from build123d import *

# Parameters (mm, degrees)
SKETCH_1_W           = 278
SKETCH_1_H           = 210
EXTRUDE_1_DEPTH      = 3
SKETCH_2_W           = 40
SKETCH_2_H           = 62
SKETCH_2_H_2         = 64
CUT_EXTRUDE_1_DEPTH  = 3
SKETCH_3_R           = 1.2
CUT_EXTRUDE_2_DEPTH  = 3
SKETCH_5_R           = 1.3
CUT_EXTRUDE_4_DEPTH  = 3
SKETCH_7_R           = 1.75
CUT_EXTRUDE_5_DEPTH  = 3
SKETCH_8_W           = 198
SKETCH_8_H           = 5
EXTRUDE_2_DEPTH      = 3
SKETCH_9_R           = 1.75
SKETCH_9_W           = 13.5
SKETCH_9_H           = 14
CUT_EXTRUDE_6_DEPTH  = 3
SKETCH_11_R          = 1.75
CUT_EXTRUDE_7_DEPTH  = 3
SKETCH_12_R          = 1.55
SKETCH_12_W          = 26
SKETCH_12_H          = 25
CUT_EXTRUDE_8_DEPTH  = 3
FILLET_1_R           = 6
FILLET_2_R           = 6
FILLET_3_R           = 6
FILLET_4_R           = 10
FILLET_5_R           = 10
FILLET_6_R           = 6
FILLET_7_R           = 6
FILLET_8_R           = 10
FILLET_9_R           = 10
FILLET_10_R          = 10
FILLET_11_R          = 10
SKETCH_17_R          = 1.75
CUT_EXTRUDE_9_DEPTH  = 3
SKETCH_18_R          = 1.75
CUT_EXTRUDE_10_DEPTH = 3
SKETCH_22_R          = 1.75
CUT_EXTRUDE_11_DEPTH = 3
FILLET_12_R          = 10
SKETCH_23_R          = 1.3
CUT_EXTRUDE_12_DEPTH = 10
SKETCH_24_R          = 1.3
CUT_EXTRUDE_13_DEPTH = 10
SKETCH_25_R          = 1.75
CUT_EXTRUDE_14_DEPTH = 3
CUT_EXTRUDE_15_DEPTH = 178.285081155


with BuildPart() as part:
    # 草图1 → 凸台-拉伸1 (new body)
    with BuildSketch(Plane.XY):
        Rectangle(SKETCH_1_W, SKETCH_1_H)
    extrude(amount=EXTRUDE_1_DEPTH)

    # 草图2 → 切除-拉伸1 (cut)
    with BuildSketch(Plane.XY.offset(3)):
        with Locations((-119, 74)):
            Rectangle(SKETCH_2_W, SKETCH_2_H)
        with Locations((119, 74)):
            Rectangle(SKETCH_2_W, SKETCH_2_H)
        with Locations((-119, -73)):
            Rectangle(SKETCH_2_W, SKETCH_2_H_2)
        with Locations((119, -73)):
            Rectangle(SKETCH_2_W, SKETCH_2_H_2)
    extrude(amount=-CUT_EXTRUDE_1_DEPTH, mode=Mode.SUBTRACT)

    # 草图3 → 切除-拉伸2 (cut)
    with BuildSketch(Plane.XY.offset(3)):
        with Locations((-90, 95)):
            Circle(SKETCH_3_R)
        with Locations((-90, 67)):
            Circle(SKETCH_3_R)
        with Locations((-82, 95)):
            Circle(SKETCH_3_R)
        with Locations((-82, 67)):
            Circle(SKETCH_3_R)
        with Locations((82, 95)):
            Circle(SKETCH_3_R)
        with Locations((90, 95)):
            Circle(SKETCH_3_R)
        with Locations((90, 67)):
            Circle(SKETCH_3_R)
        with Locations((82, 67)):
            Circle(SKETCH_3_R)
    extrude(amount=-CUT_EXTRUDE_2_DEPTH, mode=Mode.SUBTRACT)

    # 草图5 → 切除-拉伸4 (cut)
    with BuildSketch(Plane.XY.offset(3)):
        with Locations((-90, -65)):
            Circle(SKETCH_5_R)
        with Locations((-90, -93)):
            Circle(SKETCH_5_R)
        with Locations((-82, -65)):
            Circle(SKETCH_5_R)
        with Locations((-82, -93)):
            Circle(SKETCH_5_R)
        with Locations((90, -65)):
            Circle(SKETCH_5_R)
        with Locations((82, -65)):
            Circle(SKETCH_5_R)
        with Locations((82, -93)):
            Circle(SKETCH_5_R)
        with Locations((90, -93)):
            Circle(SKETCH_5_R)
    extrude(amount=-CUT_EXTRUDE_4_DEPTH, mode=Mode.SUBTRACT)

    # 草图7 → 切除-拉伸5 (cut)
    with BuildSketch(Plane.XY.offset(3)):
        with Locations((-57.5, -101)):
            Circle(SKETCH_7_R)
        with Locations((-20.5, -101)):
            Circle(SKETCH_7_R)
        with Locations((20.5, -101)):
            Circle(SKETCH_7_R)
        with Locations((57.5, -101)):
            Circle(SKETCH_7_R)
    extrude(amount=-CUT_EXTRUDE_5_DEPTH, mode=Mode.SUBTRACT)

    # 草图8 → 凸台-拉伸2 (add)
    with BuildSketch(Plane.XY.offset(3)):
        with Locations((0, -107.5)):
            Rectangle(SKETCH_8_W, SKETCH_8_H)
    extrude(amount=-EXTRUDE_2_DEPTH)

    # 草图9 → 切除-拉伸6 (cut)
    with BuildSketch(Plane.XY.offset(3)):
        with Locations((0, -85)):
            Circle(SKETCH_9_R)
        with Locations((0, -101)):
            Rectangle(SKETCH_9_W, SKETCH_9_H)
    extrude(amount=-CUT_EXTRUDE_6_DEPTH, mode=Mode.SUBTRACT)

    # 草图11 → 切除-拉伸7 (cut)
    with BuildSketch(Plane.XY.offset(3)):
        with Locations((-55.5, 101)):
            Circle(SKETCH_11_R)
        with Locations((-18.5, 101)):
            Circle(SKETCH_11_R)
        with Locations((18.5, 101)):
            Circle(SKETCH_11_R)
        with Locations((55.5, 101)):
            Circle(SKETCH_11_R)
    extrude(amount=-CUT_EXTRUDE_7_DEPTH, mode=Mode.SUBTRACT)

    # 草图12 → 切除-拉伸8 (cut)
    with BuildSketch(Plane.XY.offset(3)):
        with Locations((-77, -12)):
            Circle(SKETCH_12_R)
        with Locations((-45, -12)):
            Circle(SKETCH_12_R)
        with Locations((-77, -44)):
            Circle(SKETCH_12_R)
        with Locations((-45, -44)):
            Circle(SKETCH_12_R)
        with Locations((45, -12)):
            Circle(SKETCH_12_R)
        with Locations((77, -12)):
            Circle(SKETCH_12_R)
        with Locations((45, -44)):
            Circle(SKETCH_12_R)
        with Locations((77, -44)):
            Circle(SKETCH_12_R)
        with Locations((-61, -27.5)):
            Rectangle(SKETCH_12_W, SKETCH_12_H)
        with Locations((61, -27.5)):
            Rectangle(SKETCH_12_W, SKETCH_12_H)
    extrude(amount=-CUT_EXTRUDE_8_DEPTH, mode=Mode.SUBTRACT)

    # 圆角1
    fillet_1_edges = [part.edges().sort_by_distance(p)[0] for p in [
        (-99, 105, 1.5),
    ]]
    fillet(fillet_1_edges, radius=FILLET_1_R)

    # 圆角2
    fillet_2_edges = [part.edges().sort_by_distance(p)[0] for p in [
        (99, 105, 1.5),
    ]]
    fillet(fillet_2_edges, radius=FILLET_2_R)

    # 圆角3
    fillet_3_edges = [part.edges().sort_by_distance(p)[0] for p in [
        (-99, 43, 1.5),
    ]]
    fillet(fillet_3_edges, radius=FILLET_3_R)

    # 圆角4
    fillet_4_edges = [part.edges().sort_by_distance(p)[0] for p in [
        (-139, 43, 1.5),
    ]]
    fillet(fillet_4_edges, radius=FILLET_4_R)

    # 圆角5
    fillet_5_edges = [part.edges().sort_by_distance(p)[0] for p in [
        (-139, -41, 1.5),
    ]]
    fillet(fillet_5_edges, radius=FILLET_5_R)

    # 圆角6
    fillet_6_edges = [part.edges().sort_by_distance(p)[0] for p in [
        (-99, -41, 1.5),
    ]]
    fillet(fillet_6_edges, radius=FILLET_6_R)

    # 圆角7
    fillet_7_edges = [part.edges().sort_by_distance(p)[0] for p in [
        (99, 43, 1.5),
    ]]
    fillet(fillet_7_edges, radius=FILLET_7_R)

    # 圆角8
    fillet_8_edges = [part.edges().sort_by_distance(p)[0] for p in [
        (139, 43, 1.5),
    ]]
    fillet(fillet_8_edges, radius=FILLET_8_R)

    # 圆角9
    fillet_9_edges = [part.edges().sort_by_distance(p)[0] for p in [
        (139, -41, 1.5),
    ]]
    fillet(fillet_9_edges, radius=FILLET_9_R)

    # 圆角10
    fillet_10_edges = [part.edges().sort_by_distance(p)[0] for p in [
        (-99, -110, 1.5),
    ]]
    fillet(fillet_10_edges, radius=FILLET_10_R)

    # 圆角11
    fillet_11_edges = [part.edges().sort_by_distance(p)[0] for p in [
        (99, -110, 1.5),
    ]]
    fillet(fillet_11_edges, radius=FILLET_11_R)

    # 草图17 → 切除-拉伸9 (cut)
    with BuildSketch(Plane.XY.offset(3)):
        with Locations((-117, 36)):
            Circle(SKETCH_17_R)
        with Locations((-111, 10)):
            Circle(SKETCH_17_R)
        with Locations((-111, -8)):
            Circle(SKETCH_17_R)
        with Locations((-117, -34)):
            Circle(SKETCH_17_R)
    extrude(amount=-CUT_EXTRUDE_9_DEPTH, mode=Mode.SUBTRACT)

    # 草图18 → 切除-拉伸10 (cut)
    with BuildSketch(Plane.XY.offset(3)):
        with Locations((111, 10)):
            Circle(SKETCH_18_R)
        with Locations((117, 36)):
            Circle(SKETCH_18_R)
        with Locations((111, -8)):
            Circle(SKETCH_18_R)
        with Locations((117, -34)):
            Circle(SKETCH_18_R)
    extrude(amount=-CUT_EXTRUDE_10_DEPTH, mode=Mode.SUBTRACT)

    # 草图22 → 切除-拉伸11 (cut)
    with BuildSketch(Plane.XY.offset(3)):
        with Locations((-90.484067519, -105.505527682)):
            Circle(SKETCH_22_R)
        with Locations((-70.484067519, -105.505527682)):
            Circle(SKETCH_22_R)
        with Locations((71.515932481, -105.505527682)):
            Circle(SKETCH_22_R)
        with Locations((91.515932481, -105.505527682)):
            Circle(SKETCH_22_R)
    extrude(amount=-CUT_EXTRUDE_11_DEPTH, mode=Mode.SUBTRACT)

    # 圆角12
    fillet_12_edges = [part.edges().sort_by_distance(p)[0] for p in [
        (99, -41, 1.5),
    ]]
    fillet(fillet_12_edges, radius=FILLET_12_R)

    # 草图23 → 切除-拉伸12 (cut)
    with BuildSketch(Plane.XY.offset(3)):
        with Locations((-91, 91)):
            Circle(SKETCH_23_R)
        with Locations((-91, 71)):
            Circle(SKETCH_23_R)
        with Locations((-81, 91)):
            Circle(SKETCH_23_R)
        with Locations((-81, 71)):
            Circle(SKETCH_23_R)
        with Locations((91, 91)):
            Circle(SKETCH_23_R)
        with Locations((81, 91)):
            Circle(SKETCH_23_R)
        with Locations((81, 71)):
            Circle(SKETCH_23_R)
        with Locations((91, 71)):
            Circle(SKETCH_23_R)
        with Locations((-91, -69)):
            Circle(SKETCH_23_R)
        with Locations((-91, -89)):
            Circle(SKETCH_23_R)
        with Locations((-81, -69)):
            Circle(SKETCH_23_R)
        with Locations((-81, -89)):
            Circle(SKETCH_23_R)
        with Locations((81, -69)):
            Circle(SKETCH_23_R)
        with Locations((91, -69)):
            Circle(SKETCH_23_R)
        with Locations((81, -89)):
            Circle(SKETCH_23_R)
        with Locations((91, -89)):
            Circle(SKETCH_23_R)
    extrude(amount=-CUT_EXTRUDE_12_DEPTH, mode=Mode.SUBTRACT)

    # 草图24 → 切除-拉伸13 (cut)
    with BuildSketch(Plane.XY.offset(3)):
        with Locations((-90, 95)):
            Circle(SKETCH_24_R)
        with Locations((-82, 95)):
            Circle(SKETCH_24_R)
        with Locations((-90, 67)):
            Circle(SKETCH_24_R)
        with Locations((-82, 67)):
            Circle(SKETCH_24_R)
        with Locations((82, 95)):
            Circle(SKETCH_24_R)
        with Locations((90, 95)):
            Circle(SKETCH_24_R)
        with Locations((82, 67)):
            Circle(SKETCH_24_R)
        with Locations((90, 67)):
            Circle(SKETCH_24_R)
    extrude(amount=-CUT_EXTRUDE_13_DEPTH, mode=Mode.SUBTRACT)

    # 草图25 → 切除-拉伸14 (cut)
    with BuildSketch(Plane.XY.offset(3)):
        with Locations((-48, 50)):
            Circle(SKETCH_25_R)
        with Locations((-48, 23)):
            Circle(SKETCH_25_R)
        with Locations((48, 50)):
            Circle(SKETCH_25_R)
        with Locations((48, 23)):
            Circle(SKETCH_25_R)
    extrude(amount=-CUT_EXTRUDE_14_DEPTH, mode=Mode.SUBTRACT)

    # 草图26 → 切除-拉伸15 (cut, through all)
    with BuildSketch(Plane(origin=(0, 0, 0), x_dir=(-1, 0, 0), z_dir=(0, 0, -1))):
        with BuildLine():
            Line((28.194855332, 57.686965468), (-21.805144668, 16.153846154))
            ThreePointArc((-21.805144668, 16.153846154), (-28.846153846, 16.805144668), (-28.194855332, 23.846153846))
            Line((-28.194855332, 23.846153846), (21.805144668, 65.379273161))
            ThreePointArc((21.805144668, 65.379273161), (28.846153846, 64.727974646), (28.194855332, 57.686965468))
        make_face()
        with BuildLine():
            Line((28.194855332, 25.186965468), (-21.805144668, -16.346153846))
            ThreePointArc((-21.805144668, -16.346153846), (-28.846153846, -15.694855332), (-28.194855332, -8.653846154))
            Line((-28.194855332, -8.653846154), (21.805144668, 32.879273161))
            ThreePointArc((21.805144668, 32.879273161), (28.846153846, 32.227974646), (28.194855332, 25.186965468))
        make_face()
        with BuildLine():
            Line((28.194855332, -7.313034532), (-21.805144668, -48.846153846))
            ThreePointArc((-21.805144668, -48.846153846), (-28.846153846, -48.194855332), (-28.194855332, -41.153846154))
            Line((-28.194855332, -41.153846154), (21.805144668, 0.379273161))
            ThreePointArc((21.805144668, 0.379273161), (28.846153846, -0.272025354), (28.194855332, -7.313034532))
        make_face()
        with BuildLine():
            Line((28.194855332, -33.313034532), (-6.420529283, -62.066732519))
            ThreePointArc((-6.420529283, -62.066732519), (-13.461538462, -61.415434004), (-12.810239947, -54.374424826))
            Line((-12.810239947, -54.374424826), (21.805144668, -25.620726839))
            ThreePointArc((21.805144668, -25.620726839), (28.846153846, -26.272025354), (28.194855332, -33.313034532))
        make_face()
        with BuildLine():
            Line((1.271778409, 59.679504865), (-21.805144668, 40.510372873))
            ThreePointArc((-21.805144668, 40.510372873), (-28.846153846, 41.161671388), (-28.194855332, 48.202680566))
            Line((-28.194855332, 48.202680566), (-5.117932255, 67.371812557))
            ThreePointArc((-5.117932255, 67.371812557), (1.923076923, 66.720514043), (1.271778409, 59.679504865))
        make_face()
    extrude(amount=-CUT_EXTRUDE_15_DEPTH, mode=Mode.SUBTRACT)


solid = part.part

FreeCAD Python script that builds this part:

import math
import FreeCAD as App
import Part
import Sketcher

V = App.Vector


def edges_at(feature, points):
    """Names of the edges that pass closest to the given points."""
    edges = feature.Shape.Edges
    near = lambda p: min(range(len(edges)), key=lambda i: edges[i].distToShape(Part.Vertex(*p))[0])
    return sorted({f"Edge{near(p) + 1}" for p in points})


def add_polygon(sketch, points):
    """Adds a closed chain of lines whose ends are joined by coincident constraints."""
    first, n = sketch.GeometryCount, len(points)
    for a, b in zip(points, points[1:] + points[:1]):
        sketch.addGeometry(Part.LineSegment(App.Vector(*a, 0), App.Vector(*b, 0)), False)
    for i in range(n):
        sketch.addConstraint(Sketcher.Constraint("Coincident", first + i, 2, first + (i + 1) % n, 1))

doc = App.newDocument("Part")
body = doc.addObject("PartDesign::Body", "Body")

# Sketch on XY plane
sketch1 = doc.addObject("Sketcher::SketchObject", "Sketch")
body.addObject(sketch1)
sketch1.AttachmentSupport = (doc.XY_Plane, [""])
sketch1.MapMode = "FlatFace"
add_polygon(sketch1, [(-139, 105), (-139, -105), (139, -105), (139, 105)])  # lines 0-3
sketch1.addConstraint([
    Sketcher.Constraint("Vertical", 0),
    Sketcher.Constraint("Horizontal", 1),
    Sketcher.Constraint("Vertical", 2),
    Sketcher.Constraint("Horizontal", 3),
    Sketcher.Constraint("Symmetric", 0, 2, 2, 2, -1, 1),
    Sketcher.Constraint("DistanceX", 1, 1, 1, 2, 278.0),
    Sketcher.Constraint("DistanceY", 0, 2, 0, 1, 210.0),
])
pad1 = doc.addObject("PartDesign::Pad", "Pad")
body.addObject(pad1)
pad1.Profile = sketch1
pad1.Length = 3

# Sketch on XY plane
sketch2 = doc.addObject("Sketcher::SketchObject", "Sketch001")
body.addObject(sketch2)
sketch2.AttachmentSupport = (doc.XY_Plane, [""])
sketch2.MapMode = "FlatFace"
sketch2.AttachmentOffset = App.Placement(V(0, 0, 3), App.Rotation())
add_polygon(sketch2, [(-139, 105), (-139, 43), (-99, 43), (-99, 105)])  # lines 0-3
add_polygon(sketch2, [(99, 105), (99, 43), (139, 43), (139, 105)])  # lines 4-7
add_polygon(sketch2, [(-139, -41), (-139, -105), (-99, -105), (-99, -41)])  # lines 8-11
add_polygon(sketch2, [(99, -41), (99, -105), (139, -105), (139, -41)])  # lines 12-15
sketch2.addConstraint([
    Sketcher.Constraint("Vertical", 0),
    Sketcher.Constraint("Horizontal", 1),
    Sketcher.Constraint("Vertical", 2),
    Sketcher.Constraint("Horizontal", 3),
    Sketcher.Constraint("Vertical", 4),
    Sketcher.Constraint("Horizontal", 5),
    Sketcher.Constraint("Vertical", 6),
    Sketcher.Constraint("Horizontal", 7),
    Sketcher.Constraint("Vertical", 8),
    Sketcher.Constraint("Horizontal", 9),
    Sketcher.Constraint("Vertical", 10),
    Sketcher.Constraint("Horizontal", 11),
    Sketcher.Constraint("Vertical", 12),
    Sketcher.Constraint("Horizontal", 13),
    Sketcher.Constraint("Vertical", 14),
    Sketcher.Constraint("Horizontal", 15),
    Sketcher.Constraint("Symmetric", 6, 2, 8, 2, -1, 1),
    Sketcher.Constraint("Symmetric", 2, 2, 12, 2, -1, 1),
    Sketcher.Constraint("Symmetric", 1, 2, 4, 2, -2),
    Sketcher.Constraint("Symmetric", 3, 2, 6, 2, -2),
    Sketcher.Constraint("Symmetric", 11, 2, 14, 2, -2),
    Sketcher.Constraint("Vertical", 2, 2, 9, 2),
    Sketcher.Constraint("DistanceX", 1, 1, 1, 2, 40.0),
    Sketcher.Constraint("DistanceY", 0, 2, 0, 1, 62.0),
    Sketcher.Constraint("DistanceY", 8, 2, 8, 1, 64.0),
    Sketcher.Constraint("DistanceX", 0, 2, -1, 1, 139.0),
    Sketcher.Constraint("DistanceY", -1, 1, 0, 2, 43.0),
])
pocket1 = doc.addObject("PartDesign::Pocket", "Pocket")
body.addObject(pocket1)
pocket1.Profile = sketch2
pocket1.Length = 3

# Sketch on XY plane
sketch3 = doc.addObject("Sketcher::SketchObject", "Sketch002")
body.addObject(sketch3)
sketch3.AttachmentSupport = (doc.XY_Plane, [""])
sketch3.MapMode = "FlatFace"
sketch3.AttachmentOffset = App.Placement(V(0, 0, 3), App.Rotation())
sketch3.addGeometry([
    Part.Circle(V(-90, 95, 0), V(0, 0, 1), 1.2),  # 0
    Part.Circle(V(-90, 67, 0), V(0, 0, 1), 1.2),  # 1
    Part.Circle(V(-82, 95, 0), V(0, 0, 1), 1.2),  # 2
    Part.Circle(V(-82, 67, 0), V(0, 0, 1), 1.2),  # 3
    Part.Circle(V(82, 95, 0), V(0, 0, 1), 1.2),  # 4
    Part.Circle(V(90, 95, 0), V(0, 0, 1), 1.2),  # 5
    Part.Circle(V(90, 67, 0), V(0, 0, 1), 1.2),  # 6
    Part.Circle(V(82, 67, 0), V(0, 0, 1), 1.2),  # 7
], False)
sketch3.addConstraint([
    Sketcher.Constraint("Equal", 0, 1),
    Sketcher.Constraint("Equal", 1, 2),
    Sketcher.Constraint("Equal", 2, 3),
    Sketcher.Constraint("Equal", 3, 4),
    Sketcher.Constraint("Equal", 4, 5),
    Sketcher.Constraint("Equal", 5, 6),
    Sketcher.Constraint("Equal", 6, 7),
    Sketcher.Constraint("Symmetric", 2, 3, 4, 3, -2),
    Sketcher.Constraint("Symmetric", 0, 3, 5, 3, -2),
    Sketcher.Constraint("Symmetric", 1, 3, 6, 3, -2),
    Sketcher.Constraint("Symmetric", 3, 3, 7, 3, -2),
    Sketcher.Constraint("Horizontal", 0, 3, 2, 3),
    Sketcher.Constraint("Horizontal", 1, 3, 3, 3),
    Sketcher.Constraint("Vertical", 0, 3, 1, 3),
    Sketcher.Constraint("Vertical", 2, 3, 3, 3),
    Sketcher.Constraint("Diameter", 0, 2.4),
    Sketcher.Constraint("DistanceX", 0, 3, -1, 1, 90.0),
    Sketcher.Constraint("DistanceY", -1, 1, 0, 3, 95.0),
    Sketcher.Constraint("DistanceY", -1, 1, 1, 3, 67.0),
    Sketcher.Constraint("DistanceX", 2, 3, -1, 1, 82.0),
])
pocket2 = doc.addObject("PartDesign::Pocket", "Pocket001")
body.addObject(pocket2)
pocket2.Profile = sketch3
pocket2.Length = 3

# Sketch on XY plane
sketch4 = doc.addObject("Sketcher::SketchObject", "Sketch003")
body.addObject(sketch4)
sketch4.AttachmentSupport = (doc.XY_Plane, [""])
sketch4.MapMode = "FlatFace"
sketch4.AttachmentOffset = App.Placement(V(0, 0, 3), App.Rotation())
sketch4.addGeometry([
    Part.Circle(V(-90, -65, 0), V(0, 0, 1), 1.3),  # 0
    Part.Circle(V(-90, -93, 0), V(0, 0, 1), 1.3),  # 1
    Part.Circle(V(-82, -65, 0), V(0, 0, 1), 1.3),  # 2
    Part.Circle(V(-82, -93, 0), V(0, 0, 1), 1.3),  # 3
    Part.Circle(V(90, -65, 0), V(0, 0, 1), 1.3),  # 4
    Part.Circle(V(82, -65, 0), V(0, 0, 1), 1.3),  # 5
    Part.Circle(V(82, -93, 0), V(0, 0, 1), 1.3),  # 6
    Part.Circle(V(90, -93, 0), V(0, 0, 1), 1.3),  # 7
], False)
sketch4.addConstraint([
    Sketcher.Constraint("Equal", 0, 1),
    Sketcher.Constraint("Equal", 1, 2),
    Sketcher.Constraint("Equal", 2, 3),
    Sketcher.Constraint("Equal", 3, 4),
    Sketcher.Constraint("Equal", 4, 5),
    Sketcher.Constraint("Equal", 5, 6),
    Sketcher.Constraint("Equal", 6, 7),
    Sketcher.Constraint("Symmetric", 0, 3, 4, 3, -2),
    Sketcher.Constraint("Symmetric", 2, 3, 5, 3, -2),
    Sketcher.Constraint("Symmetric", 3, 3, 6, 3, -2),
    Sketcher.Constraint("Symmetric", 1, 3, 7, 3, -2),
    Sketcher.Constraint("Horizontal", 0, 3, 2, 3),
    Sketcher.Constraint("Horizontal", 1, 3, 3, 3),
    Sketcher.Constraint("Vertical", 0, 3, 1, 3),
    Sketcher.Constraint("Vertical", 2, 3, 3, 3),
    Sketcher.Constraint("Diameter", 0, 2.6),
    Sketcher.Constraint("DistanceX", 0, 3, -1, 1, 90.0),
    Sketcher.Constraint("DistanceY", 0, 3, -1, 1, 65.0),
    Sketcher.Constraint("DistanceY", 1, 3, -1, 1, 93.0),
    Sketcher.Constraint("DistanceX", 2, 3, -1, 1, 82.0),
])
pocket3 = doc.addObject("PartDesign::Pocket", "Pocket002")
body.addObject(pocket3)
pocket3.Profile = sketch4
pocket3.Length = 3

# Sketch on XY plane
sketch5 = doc.addObject("Sketcher::SketchObject", "Sketch004")
body.addObject(sketch5)
sketch5.AttachmentSupport = (doc.XY_Plane, [""])
sketch5.MapMode = "FlatFace"
sketch5.AttachmentOffset = App.Placement(V(0, 0, 3), App.Rotation())
sketch5.addGeometry([
    Part.Circle(V(-57.5, -101, 0), V(0, 0, 1), 1.8),
    Part.Circle(V(-20.5, -101, 0), V(0, 0, 1), 1.8),
    Part.Circle(V(20.5, -101, 0), V(0, 0, 1), 1.8),
    Part.Circle(V(57.5, -101, 0), V(0, 0, 1), 1.8),
], False)
sketch5.addConstraint([
    Sketcher.Constraint("Equal", 0, 1),
    Sketcher.Constraint("Equal", 1, 2),
    Sketcher.Constraint("Equal", 2, 3),
    Sketcher.Constraint("Symmetric", 1, 3, 2, 3, -2),
    Sketcher.Constraint("Symmetric", 0, 3, 3, 3, -2),
    Sketcher.Constraint("Horizontal", 0, 3, 1, 3),
    Sketcher.Constraint("Diameter", 0, 3.5),
    Sketcher.Constraint("DistanceY", 0, 3, -1, 1, 101.0),
    Sketcher.Constraint("DistanceX", 0, 3, 1, 3, 37.0),
    Sketcher.Constraint("DistanceX", 1, 3, 2, 3, 41.0),
])
pocket4 = doc.addObject("PartDesign::Pocket", "Pocket003")
body.addObject(pocket4)
pocket4.Profile = sketch5
pocket4.Length = 3

# Sketch on XY plane
sketch6 = doc.addObject("Sketcher::SketchObject", "Sketch005")
body.addObject(sketch6)
sketch6.AttachmentSupport = (doc.XY_Plane, [""])
sketch6.MapMode = "FlatFace"
sketch6.AttachmentOffset = App.Placement(V(0, 0, 3), App.Rotation())
add_polygon(sketch6, [(-99, -105), (-99, -110), (99, -110), (99, -105)])  # lines 0-3
sketch6.addConstraint([
    Sketcher.Constraint("Vertical", 0),
    Sketcher.Constraint("Horizontal", 1),
    Sketcher.Constraint("Vertical", 2),
    Sketcher.Constraint("Horizontal", 3),
    Sketcher.Constraint("DistanceX", 1, 1, 1, 2, 198.0),
    Sketcher.Constraint("DistanceY", 0, 2, 0, 1, 5.0),
    Sketcher.Constraint("DistanceX", 0, 2, -1, 1, 99.0),
    Sketcher.Constraint("DistanceY", 0, 2, -1, 1, 110.0),
])
pad2 = doc.addObject("PartDesign::Pad", "Pad001")
body.addObject(pad2)
pad2.Profile = sketch6
pad2.Length = 3
pad2.Reversed = True

# Sketch on XY plane
sketch7 = doc.addObject("Sketcher::SketchObject", "Sketch006")
body.addObject(sketch7)
sketch7.AttachmentSupport = (doc.XY_Plane, [""])
sketch7.MapMode = "FlatFace"
sketch7.AttachmentOffset = App.Placement(V(0, 0, 3), App.Rotation())
sketch7.addGeometry(Part.Circle(V(0, -85, 0), V(0, 0, 1), 1.8), False)  # 0
add_polygon(sketch7, [(-6.8, -94), (-6.8, -108), (6.8, -108), (6.8, -94)])  # lines 1-4
sketch7.addConstraint([
    Sketcher.Constraint("Vertical", 1),
    Sketcher.Constraint("Horizontal", 2),
    Sketcher.Constraint("Vertical", 3),
    Sketcher.Constraint("Horizontal", 4),
    Sketcher.Constraint("PointOnObject", 0, 3, -2),
    Sketcher.Constraint("Diameter", 0, 3.5),
    Sketcher.Constraint("DistanceY", 1, 2, 1, 1, 14.0),
    Sketcher.Constraint("DistanceX", 2, 1, 2, 2, 13.5),
    Sketcher.Constraint("DistanceY", 0, 3, -1, 1, 85.0),
    Sketcher.Constraint("DistanceY", 1, 2, -1, 1, 108.0),
    Sketcher.Constraint("DistanceX", 1, 2, -1, 1, 6.75),
])
pocket5 = doc.addObject("PartDesign::Pocket", "Pocket004")
body.addObject(pocket5)
pocket5.Profile = sketch7
pocket5.Length = 3

# Sketch on XY plane
sketch8 = doc.addObject("Sketcher::SketchObject", "Sketch007")
body.addObject(sketch8)
sketch8.AttachmentSupport = (doc.XY_Plane, [""])
sketch8.MapMode = "FlatFace"
sketch8.AttachmentOffset = App.Placement(V(0, 0, 3), App.Rotation())
sketch8.addGeometry([
    Part.Circle(V(-55.5, 101, 0), V(0, 0, 1), 1.8),
    Part.Circle(V(-18.5, 101, 0), V(0, 0, 1), 1.8),
    Part.Circle(V(18.5, 101, 0), V(0, 0, 1), 1.8),
    Part.Circle(V(55.5, 101, 0), V(0, 0, 1), 1.8),
], False)
sketch8.addConstraint([
    Sketcher.Constraint("Equal", 0, 1),
    Sketcher.Constraint("Equal", 1, 2),
    Sketcher.Constraint("Equal", 2, 3),
    Sketcher.Constraint("Symmetric", 1, 3, 2, 3, -2),
    Sketcher.Constraint("Symmetric", 0, 3, 3, 3, -2),
    Sketcher.Constraint("Horizontal", 0, 3, 1, 3),
    Sketcher.Constraint("Diameter", 0, 3.5),
    Sketcher.Constraint("DistanceY", -1, 1, 0, 3, 101.0),
    Sketcher.Constraint("DistanceX", 0, 3, 1, 3, 37.0),
    Sketcher.Constraint("DistanceX", 1, 3, 2, 3, 37.0),
])
pocket6 = doc.addObject("PartDesign::Pocket", "Pocket005")
body.addObject(pocket6)
pocket6.Profile = sketch8
pocket6.Length = 3

# Sketch on XY plane
sketch9 = doc.addObject("Sketcher::SketchObject", "Sketch008")
body.addObject(sketch9)
sketch9.AttachmentSupport = (doc.XY_Plane, [""])
sketch9.MapMode = "FlatFace"
sketch9.AttachmentOffset = App.Placement(V(0, 0, 3), App.Rotation())
sketch9.addGeometry(Part.Circle(V(-77, -12, 0), V(0, 0, 1), 1.6), False)  # 0
sketch9.addGeometry(Part.Circle(V(-45, -12, 0), V(0, 0, 1), 1.6), False)  # 1
sketch9.addGeometry(Part.Circle(V(-77, -44, 0), V(0, 0, 1), 1.6), False)  # 2
sketch9.addGeometry(Part.Circle(V(-45, -44, 0), V(0, 0, 1), 1.6), False)  # 3
sketch9.addGeometry(Part.Circle(V(45, -12, 0), V(0, 0, 1), 1.6), False)  # 4
sketch9.addGeometry(Part.Circle(V(77, -12, 0), V(0, 0, 1), 1.6), False)  # 5
sketch9.addGeometry(Part.Circle(V(45, -44, 0), V(0, 0, 1), 1.6), False)  # 6
sketch9.addGeometry(Part.Circle(V(77, -44, 0), V(0, 0, 1), 1.6), False)  # 7
add_polygon(sketch9, [(-74, -15), (-74, -40), (-48, -40), (-48, -15)])  # lines 8-11
add_polygon(sketch9, [(48, -15), (48, -40), (74, -40), (74, -15)])  # lines 12-15
sketch9.addConstraint([
    Sketcher.Constraint("Vertical", 8),
    Sketcher.Constraint("Horizontal", 9),
    Sketcher.Constraint("Vertical", 10),
    Sketcher.Constraint("Horizontal", 11),
    Sketcher.Constraint("Vertical", 12),
    Sketcher.Constraint("Horizontal", 13),
    Sketcher.Constraint("Vertical", 14),
    Sketcher.Constraint("Horizontal", 15),
    Sketcher.Constraint("Equal", 0, 1),
    Sketcher.Constraint("Equal", 1, 2),
    Sketcher.Constraint("Equal", 2, 3),
    Sketcher.Constraint("Equal", 3, 4),
    Sketcher.Constraint("Equal", 4, 5),
    Sketcher.Constraint("Equal", 5, 6),
    Sketcher.Constraint("Equal", 6, 7),
    Sketcher.Constraint("Symmetric", 1, 3, 4, 3, -2),
    Sketcher.Constraint("Symmetric", 0, 3, 5, 3, -2),
    Sketcher.Constraint("Symmetric", 3, 3, 6, 3, -2),
    Sketcher.Constraint("Symmetric", 2, 3, 7, 3, -2),
    Sketcher.Constraint("Symmetric", 9, 2, 12, 2, -2),
    Sketcher.Constraint("Symmetric", 11, 2, 14, 2, -2),
    Sketcher.Constraint("Horizontal", 0, 3, 1, 3),
    Sketcher.Constraint("Horizontal", 2, 3, 3, 3),
    Sketcher.Constraint("Vertical", 0, 3, 2, 3),
    Sketcher.Constraint("Vertical", 1, 3, 3, 3),
    Sketcher.Constraint("Diameter", 0, 3.1),
    Sketcher.Constraint("DistanceX", 9, 1, 9, 2, 26.0),
    Sketcher.Constraint("DistanceY", 8, 2, 8, 1, 25.0),
    Sketcher.Constraint("DistanceX", 0, 3, -1, 1, 77.0),
    Sketcher.Constraint("DistanceY", 0, 3, -1, 1, 12.0),
    Sketcher.Constraint("DistanceX", 1, 3, -1, 1, 45.0),
    Sketcher.Constraint("DistanceY", 2, 3, -1, 1, 44.0),
    Sketcher.Constraint("DistanceX", 8, 2, -1, 1, 74.0),
    Sketcher.Constraint("DistanceY", 8, 2, -1, 1, 40.0),
])
pocket7 = doc.addObject("PartDesign::Pocket", "Pocket006")
body.addObject(pocket7)
pocket7.Profile = sketch9
pocket7.Length = 3
doc.recompute()

fillet = doc.addObject("PartDesign::Fillet", "Fillet")
body.addObject(fillet)
fillet.Base = (pocket7, edges_at(pocket7, [(-99, 105, 1.5)]))
fillet.Radius = 6
doc.recompute()

fillet2 = doc.addObject("PartDesign::Fillet", "Fillet001")
body.addObject(fillet2)
fillet2.Base = (fillet, edges_at(fillet, [(99, 105, 1.5)]))
fillet2.Radius = 6
doc.recompute()

fillet3 = doc.addObject("PartDesign::Fillet", "Fillet002")
body.addObject(fillet3)
fillet3.Base = (fillet2, edges_at(fillet2, [(-99, 43, 1.5)]))
fillet3.Radius = 6
doc.recompute()

fillet4 = doc.addObject("PartDesign::Fillet", "Fillet003")
body.addObject(fillet4)
fillet4.Base = (fillet3, edges_at(fillet3, [(-139, 43, 1.5)]))
fillet4.Radius = 10
doc.recompute()

fillet5 = doc.addObject("PartDesign::Fillet", "Fillet004")
body.addObject(fillet5)
fillet5.Base = (fillet4, edges_at(fillet4, [(-139, -41, 1.5)]))
fillet5.Radius = 10
doc.recompute()

fillet6 = doc.addObject("PartDesign::Fillet", "Fillet005")
body.addObject(fillet6)
fillet6.Base = (fillet5, edges_at(fillet5, [(-99, -41, 1.5)]))
fillet6.Radius = 6
doc.recompute()

fillet7 = doc.addObject("PartDesign::Fillet", "Fillet006")
body.addObject(fillet7)
fillet7.Base = (fillet6, edges_at(fillet6, [(99, 43, 1.5)]))
fillet7.Radius = 6
doc.recompute()

fillet8 = doc.addObject("PartDesign::Fillet", "Fillet007")
body.addObject(fillet8)
fillet8.Base = (fillet7, edges_at(fillet7, [(139, 43, 1.5)]))
fillet8.Radius = 10
doc.recompute()

fillet9 = doc.addObject("PartDesign::Fillet", "Fillet008")
body.addObject(fillet9)
fillet9.Base = (fillet8, edges_at(fillet8, [(139, -41, 1.5)]))
fillet9.Radius = 10
doc.recompute()

fillet10 = doc.addObject("PartDesign::Fillet", "Fillet009")
body.addObject(fillet10)
fillet10.Base = (fillet9, edges_at(fillet9, [(-99, -110, 1.5)]))
fillet10.Radius = 10
doc.recompute()

fillet11 = doc.addObject("PartDesign::Fillet", "Fillet010")
body.addObject(fillet11)
fillet11.Base = (fillet10, edges_at(fillet10, [(99, -110, 1.5)]))
fillet11.Radius = 10

# Sketch on XY plane
sketch10 = doc.addObject("Sketcher::SketchObject", "Sketch009")
body.addObject(sketch10)
sketch10.AttachmentSupport = (doc.XY_Plane, [""])
sketch10.MapMode = "FlatFace"
sketch10.AttachmentOffset = App.Placement(V(0, 0, 3), App.Rotation())
sketch10.addGeometry([
    Part.Circle(V(-117, 36, 0), V(0, 0, 1), 1.8),
    Part.Circle(V(-111, 10, 0), V(0, 0, 1), 1.8),
    Part.Circle(V(-111, -8, 0), V(0, 0, 1), 1.8),
    Part.Circle(V(-117, -34, 0), V(0, 0, 1), 1.8),
], False)
sketch10.addConstraint([
    Sketcher.Constraint("Equal", 0, 1),
    Sketcher.Constraint("Equal", 1, 2),
    Sketcher.Constraint("Equal", 2, 3),
    Sketcher.Constraint("Vertical", 1, 3, 2, 3),
    Sketcher.Constraint("Vertical", 0, 3, 3, 3),
    Sketcher.Constraint("Diameter", 0, 3.5),
    Sketcher.Constraint("DistanceX", 0, 3, -1, 1, 117.0),
    Sketcher.Constraint("DistanceY", -1, 1, 0, 3, 36.0),
    Sketcher.Constraint("DistanceX", 1, 3, -1, 1, 111.0),
    Sketcher.Constraint("DistanceY", -1, 1, 1, 3, 10.0),
    Sketcher.Constraint("DistanceY", 2, 3, -1, 1, 8.0),
    Sketcher.Constraint("DistanceY", 3, 3, -1, 1, 34.0),
])
pocket8 = doc.addObject("PartDesign::Pocket", "Pocket007")
body.addObject(pocket8)
pocket8.Profile = sketch10
pocket8.Length = 3

# Sketch on XY plane
sketch11 = doc.addObject("Sketcher::SketchObject", "Sketch010")
body.addObject(sketch11)
sketch11.AttachmentSupport = (doc.XY_Plane, [""])
sketch11.MapMode = "FlatFace"
sketch11.AttachmentOffset = App.Placement(V(0, 0, 3), App.Rotation())
sketch11.addGeometry([
    Part.Circle(V(111, 10, 0), V(0, 0, 1), 1.8),
    Part.Circle(V(117, 36, 0), V(0, 0, 1), 1.8),
    Part.Circle(V(111, -8, 0), V(0, 0, 1), 1.8),
    Part.Circle(V(117, -34, 0), V(0, 0, 1), 1.8),
], False)
sketch11.addConstraint([
    Sketcher.Constraint("Equal", 0, 1),
    Sketcher.Constraint("Equal", 1, 2),
    Sketcher.Constraint("Equal", 2, 3),
    Sketcher.Constraint("Vertical", 0, 3, 2, 3),
    Sketcher.Constraint("Vertical", 1, 3, 3, 3),
    Sketcher.Constraint("Diameter", 0, 3.5),
    Sketcher.Constraint("DistanceX", -1, 1, 0, 3, 111.0),
    Sketcher.Constraint("DistanceY", -1, 1, 0, 3, 10.0),
    Sketcher.Constraint("DistanceX", -1, 1, 1, 3, 117.0),
    Sketcher.Constraint("DistanceY", -1, 1, 1, 3, 36.0),
    Sketcher.Constraint("DistanceY", 2, 3, -1, 1, 8.0),
    Sketcher.Constraint("DistanceY", 3, 3, -1, 1, 34.0),
])
pocket9 = doc.addObject("PartDesign::Pocket", "Pocket008")
body.addObject(pocket9)
pocket9.Profile = sketch11
pocket9.Length = 3

# Sketch on XY plane
sketch12 = doc.addObject("Sketcher::SketchObject", "Sketch011")
body.addObject(sketch12)
sketch12.AttachmentSupport = (doc.XY_Plane, [""])
sketch12.MapMode = "FlatFace"
sketch12.AttachmentOffset = App.Placement(V(0, 0, 3), App.Rotation())
sketch12.addGeometry([
    Part.Circle(V(-90.5, -105.5, 0), V(0, 0, 1), 1.8),
    Part.Circle(V(-70.5, -105.5, 0), V(0, 0, 1), 1.8),
    Part.Circle(V(71.5, -105.5, 0), V(0, 0, 1), 1.8),
    Part.Circle(V(91.5, -105.5, 0), V(0, 0, 1), 1.8),
], False)
sketch12.addConstraint([
    Sketcher.Constraint("Equal", 0, 1),
    Sketcher.Constraint("Equal", 1, 2),
    Sketcher.Constraint("Equal", 2, 3),
    Sketcher.Constraint("Horizontal", 0, 3, 1, 3),
    Sketcher.Constraint("Horizontal", 1, 3, 2, 3),
    Sketcher.Constraint("Horizontal", 2, 3, 3, 3),
    Sketcher.Constraint("Diameter", 0, 3.5),
    Sketcher.Constraint("DistanceX", 0, 3, 1, 3, 20.0),
    Sketcher.Constraint("DistanceX", 1, 3, 2, 3, 142.0),
    Sketcher.Constraint("DistanceX", 2, 3, 3, 3, 20.0),
    Sketcher.Constraint("DistanceX", 0, 3, -1, 1, 90.484068),
    Sketcher.Constraint("DistanceY", 0, 3, -1, 1, 105.505528),
])
pocket10 = doc.addObject("PartDesign::Pocket", "Pocket009")
body.addObject(pocket10)
pocket10.Profile = sketch12
pocket10.Length = 3
doc.recompute()

fillet12 = doc.addObject("PartDesign::Fillet", "Fillet011")
body.addObject(fillet12)
fillet12.Base = (pocket10, edges_at(pocket10, [(99, -41, 1.5)]))
fillet12.Radius = 10

# Sketch on XY plane
sketch13 = doc.addObject("Sketcher::SketchObject", "Sketch012")
body.addObject(sketch13)
sketch13.AttachmentSupport = (doc.XY_Plane, [""])
sketch13.MapMode = "FlatFace"
sketch13.AttachmentOffset = App.Placement(V(0, 0, 3), App.Rotation())
sketch13.addGeometry([
    Part.Circle(V(-91, 91, 0), V(0, 0, 1), 1.3),  # 0
    Part.Circle(V(-91, 71, 0), V(0, 0, 1), 1.3),  # 1
    Part.Circle(V(-81, 91, 0), V(0, 0, 1), 1.3),  # 2
    Part.Circle(V(-81, 71, 0), V(0, 0, 1), 1.3),  # 3
    Part.Circle(V(91, 91, 0), V(0, 0, 1), 1.3),  # 4
    Part.Circle(V(81, 91, 0), V(0, 0, 1), 1.3),  # 5
    Part.Circle(V(81, 71, 0), V(0, 0, 1), 1.3),  # 6
    Part.Circle(V(91, 71, 0), V(0, 0, 1), 1.3),  # 7
    Part.Circle(V(-91, -69, 0), V(0, 0, 1), 1.3),  # 8
    Part.Circle(V(-91, -89, 0), V(0, 0, 1), 1.3),  # 9
    Part.Circle(V(-81, -69, 0), V(0, 0, 1), 1.3),  # 10
    Part.Circle(V(-81, -89, 0), V(0, 0, 1), 1.3),  # 11
    Part.Circle(V(81, -69, 0), V(0, 0, 1), 1.3),  # 12
    Part.Circle(V(91, -69, 0), V(0, 0, 1), 1.3),  # 13
    Part.Circle(V(81, -89, 0), V(0, 0, 1), 1.3),  # 14
    Part.Circle(V(91, -89, 0), V(0, 0, 1), 1.3),  # 15
], False)
sketch13.addConstraint([
    Sketcher.Constraint("Equal", 0, 1),
    Sketcher.Constraint("Equal", 1, 2),
    Sketcher.Constraint("Equal", 2, 3),
    Sketcher.Constraint("Equal", 3, 4),
    Sketcher.Constraint("Equal", 4, 5),
    Sketcher.Constraint("Equal", 5, 6),
    Sketcher.Constraint("Equal", 6, 7),
    Sketcher.Constraint("Equal", 7, 8),
    Sketcher.Constraint("Equal", 8, 9),
    Sketcher.Constraint("Equal", 9, 10),
    Sketcher.Constraint("Equal", 10, 11),
    Sketcher.Constraint("Equal", 11, 12),
    Sketcher.Constraint("Equal", 12, 13),
    Sketcher.Constraint("Equal", 13, 14),
    Sketcher.Constraint("Equal", 14, 15),
    Sketcher.Constraint("Symmetric", 0, 3, 4, 3, -2),
    Sketcher.Constraint("Symmetric", 2, 3, 5, 3, -2),
    Sketcher.Constraint("Symmetric", 3, 3, 6, 3, -2),
    Sketcher.Constraint("Symmetric", 1, 3, 7, 3, -2),
    Sketcher.Constraint("Symmetric", 10, 3, 12, 3, -2),
    Sketcher.Constraint("Symmetric", 8, 3, 13, 3, -2),
    Sketcher.Constraint("Symmetric", 11, 3, 14, 3, -2),
    Sketcher.Constraint("Symmetric", 9, 3, 15, 3, -2),
    Sketcher.Constraint("Horizontal", 0, 3, 2, 3),
    Sketcher.Constraint("Horizontal", 1, 3, 3, 3),
    Sketcher.Constraint("Horizontal", 8, 3, 10, 3),
    Sketcher.Constraint("Horizontal", 9, 3, 11, 3),
    Sketcher.Constraint("Vertical", 0, 3, 1, 3),
    Sketcher.Constraint("Vertical", 2, 3, 3, 3),
    Sketcher.Constraint("Vertical", 1, 3, 8, 3),
    Sketcher.Constraint("Vertical", 8, 3, 9, 3),
    Sketcher.Constraint("Vertical", 3, 3, 10, 3),
    Sketcher.Constraint("Vertical", 10, 3, 11, 3),
    Sketcher.Constraint("Diameter", 0, 2.6),
    Sketcher.Constraint("DistanceX", 0, 3, -1, 1, 91.0),
    Sketcher.Constraint("DistanceY", -1, 1, 0, 3, 91.0),
    Sketcher.Constraint("DistanceY", -1, 1, 1, 3, 71.0),
    Sketcher.Constraint("DistanceX", 2, 3, -1, 1, 81.0),
    Sketcher.Constraint("DistanceY", 8, 3, -1, 1, 69.0),
    Sketcher.Constraint("DistanceY", 9, 3, -1, 1, 89.0),
])
pocket11 = doc.addObject("PartDesign::Pocket", "Pocket010")
body.addObject(pocket11)
pocket11.Profile = sketch13
pocket11.Length = 10

# Sketch on XY plane
sketch14 = doc.addObject("Sketcher::SketchObject", "Sketch013")
body.addObject(sketch14)
sketch14.AttachmentSupport = (doc.XY_Plane, [""])
sketch14.MapMode = "FlatFace"
sketch14.AttachmentOffset = App.Placement(V(0, 0, 3), App.Rotation())
sketch14.addGeometry([
    Part.Circle(V(-90, 95, 0), V(0, 0, 1), 1.3),  # 0
    Part.Circle(V(-82, 95, 0), V(0, 0, 1), 1.3),  # 1
    Part.Circle(V(-90, 67, 0), V(0, 0, 1), 1.3),  # 2
    Part.Circle(V(-82, 67, 0), V(0, 0, 1), 1.3),  # 3
    Part.Circle(V(82, 95, 0), V(0, 0, 1), 1.3),  # 4
    Part.Circle(V(90, 95, 0), V(0, 0, 1), 1.3),  # 5
    Part.Circle(V(82, 67, 0), V(0, 0, 1), 1.3),  # 6
    Part.Circle(V(90, 67, 0), V(0, 0, 1), 1.3),  # 7
], False)
sketch14.addConstraint([
    Sketcher.Constraint("Equal", 0, 1),
    Sketcher.Constraint("Equal", 1, 2),
    Sketcher.Constraint("Equal", 2, 3),
    Sketcher.Constraint("Equal", 3, 4),
    Sketcher.Constraint("Equal", 4, 5),
    Sketcher.Constraint("Equal", 5, 6),
    Sketcher.Constraint("Equal", 6, 7),
    Sketcher.Constraint("Symmetric", 1, 3, 4, 3, -2),
    Sketcher.Constraint("Symmetric", 0, 3, 5, 3, -2),
    Sketcher.Constraint("Symmetric", 3, 3, 6, 3, -2),
    Sketcher.Constraint("Symmetric", 2, 3, 7, 3, -2),
    Sketcher.Constraint("Horizontal", 0, 3, 1, 3),
    Sketcher.Constraint("Horizontal", 2, 3, 3, 3),
    Sketcher.Constraint("Vertical", 0, 3, 2, 3),
    Sketcher.Constraint("Vertical", 1, 3, 3, 3),
    Sketcher.Constraint("Diameter", 0, 2.6),
    Sketcher.Constraint("DistanceX", 0, 3, -1, 1, 90.0),
    Sketcher.Constraint("DistanceY", -1, 1, 0, 3, 95.0),
    Sketcher.Constraint("DistanceX", 1, 3, -1, 1, 82.0),
    Sketcher.Constraint("DistanceY", -1, 1, 2, 3, 67.0),
])
pocket12 = doc.addObject("PartDesign::Pocket", "Pocket011")
body.addObject(pocket12)
pocket12.Profile = sketch14
pocket12.Length = 10

# Sketch on XY plane
sketch15 = doc.addObject("Sketcher::SketchObject", "Sketch014")
body.addObject(sketch15)
sketch15.AttachmentSupport = (doc.XY_Plane, [""])
sketch15.MapMode = "FlatFace"
sketch15.AttachmentOffset = App.Placement(V(0, 0, 3), App.Rotation())
sketch15.addGeometry([
    Part.Circle(V(-48, 50, 0), V(0, 0, 1), 1.8),
    Part.Circle(V(-48, 23, 0), V(0, 0, 1), 1.8),
    Part.Circle(V(48, 50, 0), V(0, 0, 1), 1.8),
    Part.Circle(V(48, 23, 0), V(0, 0, 1), 1.8),
], False)
sketch15.addConstraint([
    Sketcher.Constraint("Equal", 0, 1),
    Sketcher.Constraint("Equal", 1, 2),
    Sketcher.Constraint("Equal", 2, 3),
    Sketcher.Constraint("Symmetric", 0, 3, 2, 3, -2),
    Sketcher.Constraint("Symmetric", 1, 3, 3, 3, -2),
    Sketcher.Constraint("Vertical", 0, 3, 1, 3),
    Sketcher.Constraint("Diameter", 0, 3.5),
    Sketcher.Constraint("DistanceX", 0, 3, -1, 1, 48.0),
    Sketcher.Constraint("DistanceY", -1, 1, 0, 3, 50.0),
    Sketcher.Constraint("DistanceY", -1, 1, 1, 3, 23.0),
])
pocket13 = doc.addObject("PartDesign::Pocket", "Pocket012")
body.addObject(pocket13)
pocket13.Profile = sketch15
pocket13.Length = 3

# Sketch on XY plane
sketch16 = doc.addObject("Sketcher::SketchObject", "Sketch015")
body.addObject(sketch16)
sketch16.AttachmentSupport = (doc.XY_Plane, [""])
sketch16.MapMode = "FlatFace"
sketch16.addGeometry([
    Part.LineSegment(V(22, 16, 0), V(-28, 58, 0)),  # 0
    Part.ArcOfCircle(Part.Circle(V(-25, 62, 0), V(0, 0, 1), 5), math.radians(50), math.radians(230)),  # 1
    Part.LineSegment(V(-22, 65, 0), V(28, 24, 0)),  # 2
    Part.ArcOfCircle(Part.Circle(V(25, 20, 0), V(0, 0, 1), 5), math.radians(-130), math.radians(50)),  # 3
    Part.LineSegment(V(22, -16, 0), V(-28, 25, 0)),  # 4
    Part.ArcOfCircle(Part.Circle(V(-25, 29, 0), V(0, 0, 1), 5), math.radians(50), math.radians(230)),  # 5
    Part.LineSegment(V(-22, 33, 0), V(28, -9, 0)),  # 6
    Part.ArcOfCircle(Part.Circle(V(25, -12, 0), V(0, 0, 1), 5), math.radians(-130), math.radians(50)),  # 7
    Part.LineSegment(V(22, -49, 0), V(-28, -7, 0)),  # 8
    Part.ArcOfCircle(Part.Circle(V(-25, -3, 0), V(0, 0, 1), 5), math.radians(50), math.radians(230)),  # 9
    Part.LineSegment(V(-22, 0, 0), V(28, -41, 0)),  # 10
    Part.ArcOfCircle(Part.Circle(V(25, -45, 0), V(0, 0, 1), 5), math.radians(-130), math.radians(50)),  # 11
    Part.LineSegment(V(6, -62, 0), V(-28, -33, 0)),  # 12
    Part.ArcOfCircle(Part.Circle(V(-25, -29, 0), V(0, 0, 1), 5), math.radians(50), math.radians(230)),  # 13
    Part.LineSegment(V(-22, -26, 0), V(13, -54, 0)),  # 14
    Part.ArcOfCircle(Part.Circle(V(10, -58, 0), V(0, 0, 1), 5), math.radians(-130), math.radians(50)),  # 15
    Part.LineSegment(V(22, 41, 0), V(-1, 60, 0)),  # 16
    Part.ArcOfCircle(Part.Circle(V(2, 64, 0), V(0, 0, 1), 5), math.radians(50), math.radians(230)),  # 17
    Part.LineSegment(V(5, 67, 0), V(28, 48, 0)),  # 18
    Part.ArcOfCircle(Part.Circle(V(25, 44, 0), V(0, 0, 1), 5), math.radians(-130), math.radians(50)),  # 19
], False)
sketch16.addConstraint([
    Sketcher.Constraint("Tangent", 0, 2, 1, 2),
    Sketcher.Constraint("Tangent", 1, 1, 2, 1),
    Sketcher.Constraint("Tangent", 2, 2, 3, 2),
    Sketcher.Constraint("Tangent", 3, 1, 0, 1),
    Sketcher.Constraint("Tangent", 4, 2, 5, 2),
    Sketcher.Constraint("Tangent", 5, 1, 6, 1),
    Sketcher.Constraint("Tangent", 6, 2, 7, 2),
    Sketcher.Constraint("Tangent", 7, 1, 4, 1),
    Sketcher.Constraint("Tangent", 8, 2, 9, 2),
    Sketcher.Constraint("Tangent", 9, 1, 10, 1),
    Sketcher.Constraint("Tangent", 10, 2, 11, 2),
    Sketcher.Constraint("Tangent", 11, 1, 8, 1),
    Sketcher.Constraint("Tangent", 12, 2, 13, 2),
    Sketcher.Constraint("Tangent", 13, 1, 14, 1),
    Sketcher.Constraint("Tangent", 14, 2, 15, 2),
    Sketcher.Constraint("Tangent", 15, 1, 12, 1),
    Sketcher.Constraint("Tangent", 16, 2, 17, 2),
    Sketcher.Constraint("Tangent", 17, 1, 18, 1),
    Sketcher.Constraint("Tangent", 18, 2, 19, 2),
    Sketcher.Constraint("Tangent", 19, 1, 16, 1),
    Sketcher.Constraint("Equal", 1, 3),
    Sketcher.Constraint("Equal", 3, 5),
    Sketcher.Constraint("Equal", 5, 7),
    Sketcher.Constraint("Equal", 7, 9),
    Sketcher.Constraint("Equal", 9, 11),
    Sketcher.Constraint("Equal", 11, 13),
    Sketcher.Constraint("Equal", 13, 15),
    Sketcher.Constraint("Equal", 15, 17),
    Sketcher.Constraint("Equal", 17, 19),
    Sketcher.Constraint("Parallel", 2, 4),
    Sketcher.Constraint("Parallel", 6, 8),
    Sketcher.Constraint("Parallel", 10, 12),
    Sketcher.Constraint("Parallel", 14, 16),
    Sketcher.Constraint("Vertical", 1, 3, 5, 3),
    Sketcher.Constraint("Vertical", 3, 3, 7, 3),
    Sketcher.Constraint("Vertical", 5, 3, 9, 3),
    Sketcher.Constraint("Vertical", 7, 3, 11, 3),
    Sketcher.Constraint("Vertical", 9, 3, 13, 3),
    Sketcher.Constraint("Vertical", 11, 3, 19, 3),
    Sketcher.Constraint("Radius", 1, 5.0),
    Sketcher.Constraint("Distance", 0, 65.0),
    Sketcher.Constraint("Distance", 12, 45.0),
    Sketcher.Constraint("Distance", 16, 30.0),
    Sketcher.Constraint("DistanceX", 1, 3, -1, 1, 25.0),
    Sketcher.Constraint("DistanceX", -1, 1, 3, 3, 25.0),
    Sketcher.Constraint("DistanceY", -1, 1, 3, 3, 20.0),
    Sketcher.Constraint("DistanceY", 11, 3, -1, 1, 45.0),
    Sketcher.Constraint("DistanceY", 13, 3, 9, 3, 26.0),
    Sketcher.Constraint("DistanceY", 7, 3, -1, 1, 12.5),
    Sketcher.Constraint("DistanceY", -1, 1, 17, 3, 63.525659),
])
pocket14 = doc.addObject("PartDesign::Pocket", "Pocket013")
body.addObject(pocket14)
pocket14.Profile = sketch16
pocket14.Type = "ThroughAll"
pocket14.Reversed = True

doc.recompute()
